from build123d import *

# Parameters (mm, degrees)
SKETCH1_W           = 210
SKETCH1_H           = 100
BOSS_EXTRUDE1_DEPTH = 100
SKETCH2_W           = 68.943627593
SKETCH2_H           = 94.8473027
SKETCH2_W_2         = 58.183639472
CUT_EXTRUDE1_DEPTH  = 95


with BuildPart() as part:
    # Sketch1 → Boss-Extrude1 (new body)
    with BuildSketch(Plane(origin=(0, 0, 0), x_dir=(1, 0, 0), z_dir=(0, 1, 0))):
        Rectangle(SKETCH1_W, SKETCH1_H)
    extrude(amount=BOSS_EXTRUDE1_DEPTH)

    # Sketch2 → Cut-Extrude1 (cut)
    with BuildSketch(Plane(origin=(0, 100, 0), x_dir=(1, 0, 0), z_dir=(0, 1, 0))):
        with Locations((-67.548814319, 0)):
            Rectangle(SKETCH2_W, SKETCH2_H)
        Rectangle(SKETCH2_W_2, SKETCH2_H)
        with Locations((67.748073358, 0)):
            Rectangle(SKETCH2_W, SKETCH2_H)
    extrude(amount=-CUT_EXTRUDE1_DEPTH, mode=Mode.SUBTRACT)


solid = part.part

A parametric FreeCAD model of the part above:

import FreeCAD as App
import Part
import Sketcher
from FreeCAD import Vector
Q = App.Units.Quantity


def add_polygon(sketch, points):
    """Adds a closed chain of lines whose ends are joined by coincident constraints."""
    first, n = sketch.GeometryCount, len(points)
    for a, b in zip(points, points[1:] + points[:1]):
        sketch.addGeometry(Part.LineSegment(App.Vector(*a, 0), App.Vector(*b, 0)), False)
    for i in range(n):
        sketch.addConstraint(Sketcher.Constraint("Coincident", first + i, 2, first + (i + 1) % n, 1))

doc = App.newDocument("Part")
body = doc.addObject("PartDesign::Body", "Body")

# Sketch on XZ plane
sketch1 = body.newObject("Sketcher::SketchObject", "Sketch")
sketch1.AttachmentSupport = (doc.getObject("XZ_Plane"), [""])
sketch1.MapMode = "FlatFace"
add_polygon(sketch1, [(-105, -50), (-105, 50), (105, 50), (105, -50)])  # lines 0-3
sketch1.addConstraint(Sketcher.Constraint("Vertical", 0))
sketch1.addConstraint(Sketcher.Constraint("Horizontal", 1))
sketch1.addConstraint(Sketcher.Constraint("Vertical", 2))
sketch1.addConstraint(Sketcher.Constraint("Horizontal", 3))
sketch1.addConstraint(Sketcher.Constraint("Symmetric", 0, 2, 2, 2, -1, 1))
sketch1.addConstraint(Sketcher.Constraint("DistanceX", 1, 1, 1, 2, Q("210 mm")))
sketch1.addConstraint(Sketcher.Constraint("DistanceY", 0, 1, 0, 2, Q("100 mm")))
pad1 = body.newObject("PartDesign::Pad", "Pad")
pad1.Profile = sketch1
pad1.Length = 100
pad1.Reversed = True

# Sketch on XZ plane
sketch2 = body.newObject("Sketcher::SketchObject", "Sketch001")
sketch2.AttachmentSupport = (doc.getObject("XZ_Plane"), [""])
sketch2.MapMode = "FlatFace"
sketch2.AttachmentOffset = App.Placement(Vector(0, 0, -100), App.Rotation())
add_polygon(sketch2, [(-102, -47), (-102, 47), (-33, 47), (-33, -47)])  # lines 0-3
add_polygon(sketch2, [(-29, -47), (-29, 47), (29, 47), (29, -47)])  # lines 4-7
add_polygon(sketch2, [(33, -47), (33, 47), (102, 47), (102, -47)])  # lines 8-11
sketch2.addConstraint(Sketcher.Constraint("Vertical", 0))
sketch2.addConstraint(Sketcher.Constraint("Horizontal", 1))
sketch2.addConstraint(Sketcher.Constraint("Vertical", 2))
sketch2.addConstraint(Sketcher.Constraint("Horizontal", 3))
sketch2.addConstraint(Sketcher.Constraint("Vertical", 4))
sketch2.addConstraint(Sketcher.Constraint("Horizontal", 5))
sketch2.addConstraint(Sketcher.Constraint("Vertical", 6))
sketch2.addConstraint(Sketcher.Constraint("Horizontal", 7))
sketch2.addConstraint(Sketcher.Constraint("Vertical", 8))
sketch2.addConstraint(Sketcher.Constraint("Horizontal", 9))
sketch2.addConstraint(Sketcher.Constraint("Vertical", 10))
sketch2.addConstraint(Sketcher.Constraint("Horizontal", 11))
sketch2.addConstraint(Sketcher.Constraint("Symmetric", 4, 2, 6, 2, -1, 1))
sketch2.addConstraint(Sketcher.Constraint("Horizontal", 1, 2, 4, 2))
sketch2.addConstraint(Sketcher.Constraint("Horizontal", 3, 2, 6, 2))
sketch2.addConstraint(Sketcher.Constraint("Horizontal", 5, 2, 8, 2))
sketch2.addConstraint(Sketcher.Constraint("Horizontal", 7, 2, 10, 2))
sketch2.addConstraint(Sketcher.Constraint("Equal", 3, 9))
sketch2.addConstraint(Sketcher.Constraint("DistanceX", 1, 2, -1, 1, Q("33.077001 mm")))
sketch2.addConstraint(Sketcher.Constraint("DistanceX", 5, 1, 5, 2, Q("58.183639 mm")))
sketch2.addConstraint(Sketcher.Constraint("DistanceX", 1, 1, 1, 2, Q("68.943628 mm")))
sketch2.addConstraint(Sketcher.Constraint("DistanceY", 0, 1, 0, 2, Q("94.847303 mm")))
sketch2.addConstraint(Sketcher.Constraint("DistanceX", -1, 1, 8, 2, Q("33.27626 mm")))
pocket1 = body.newObject("PartDesign::Pocket", "Pocket")
pocket1.Profile = sketch2
pocket1.Length = 95
pocket1.Reversed = True

doc.recompute()
